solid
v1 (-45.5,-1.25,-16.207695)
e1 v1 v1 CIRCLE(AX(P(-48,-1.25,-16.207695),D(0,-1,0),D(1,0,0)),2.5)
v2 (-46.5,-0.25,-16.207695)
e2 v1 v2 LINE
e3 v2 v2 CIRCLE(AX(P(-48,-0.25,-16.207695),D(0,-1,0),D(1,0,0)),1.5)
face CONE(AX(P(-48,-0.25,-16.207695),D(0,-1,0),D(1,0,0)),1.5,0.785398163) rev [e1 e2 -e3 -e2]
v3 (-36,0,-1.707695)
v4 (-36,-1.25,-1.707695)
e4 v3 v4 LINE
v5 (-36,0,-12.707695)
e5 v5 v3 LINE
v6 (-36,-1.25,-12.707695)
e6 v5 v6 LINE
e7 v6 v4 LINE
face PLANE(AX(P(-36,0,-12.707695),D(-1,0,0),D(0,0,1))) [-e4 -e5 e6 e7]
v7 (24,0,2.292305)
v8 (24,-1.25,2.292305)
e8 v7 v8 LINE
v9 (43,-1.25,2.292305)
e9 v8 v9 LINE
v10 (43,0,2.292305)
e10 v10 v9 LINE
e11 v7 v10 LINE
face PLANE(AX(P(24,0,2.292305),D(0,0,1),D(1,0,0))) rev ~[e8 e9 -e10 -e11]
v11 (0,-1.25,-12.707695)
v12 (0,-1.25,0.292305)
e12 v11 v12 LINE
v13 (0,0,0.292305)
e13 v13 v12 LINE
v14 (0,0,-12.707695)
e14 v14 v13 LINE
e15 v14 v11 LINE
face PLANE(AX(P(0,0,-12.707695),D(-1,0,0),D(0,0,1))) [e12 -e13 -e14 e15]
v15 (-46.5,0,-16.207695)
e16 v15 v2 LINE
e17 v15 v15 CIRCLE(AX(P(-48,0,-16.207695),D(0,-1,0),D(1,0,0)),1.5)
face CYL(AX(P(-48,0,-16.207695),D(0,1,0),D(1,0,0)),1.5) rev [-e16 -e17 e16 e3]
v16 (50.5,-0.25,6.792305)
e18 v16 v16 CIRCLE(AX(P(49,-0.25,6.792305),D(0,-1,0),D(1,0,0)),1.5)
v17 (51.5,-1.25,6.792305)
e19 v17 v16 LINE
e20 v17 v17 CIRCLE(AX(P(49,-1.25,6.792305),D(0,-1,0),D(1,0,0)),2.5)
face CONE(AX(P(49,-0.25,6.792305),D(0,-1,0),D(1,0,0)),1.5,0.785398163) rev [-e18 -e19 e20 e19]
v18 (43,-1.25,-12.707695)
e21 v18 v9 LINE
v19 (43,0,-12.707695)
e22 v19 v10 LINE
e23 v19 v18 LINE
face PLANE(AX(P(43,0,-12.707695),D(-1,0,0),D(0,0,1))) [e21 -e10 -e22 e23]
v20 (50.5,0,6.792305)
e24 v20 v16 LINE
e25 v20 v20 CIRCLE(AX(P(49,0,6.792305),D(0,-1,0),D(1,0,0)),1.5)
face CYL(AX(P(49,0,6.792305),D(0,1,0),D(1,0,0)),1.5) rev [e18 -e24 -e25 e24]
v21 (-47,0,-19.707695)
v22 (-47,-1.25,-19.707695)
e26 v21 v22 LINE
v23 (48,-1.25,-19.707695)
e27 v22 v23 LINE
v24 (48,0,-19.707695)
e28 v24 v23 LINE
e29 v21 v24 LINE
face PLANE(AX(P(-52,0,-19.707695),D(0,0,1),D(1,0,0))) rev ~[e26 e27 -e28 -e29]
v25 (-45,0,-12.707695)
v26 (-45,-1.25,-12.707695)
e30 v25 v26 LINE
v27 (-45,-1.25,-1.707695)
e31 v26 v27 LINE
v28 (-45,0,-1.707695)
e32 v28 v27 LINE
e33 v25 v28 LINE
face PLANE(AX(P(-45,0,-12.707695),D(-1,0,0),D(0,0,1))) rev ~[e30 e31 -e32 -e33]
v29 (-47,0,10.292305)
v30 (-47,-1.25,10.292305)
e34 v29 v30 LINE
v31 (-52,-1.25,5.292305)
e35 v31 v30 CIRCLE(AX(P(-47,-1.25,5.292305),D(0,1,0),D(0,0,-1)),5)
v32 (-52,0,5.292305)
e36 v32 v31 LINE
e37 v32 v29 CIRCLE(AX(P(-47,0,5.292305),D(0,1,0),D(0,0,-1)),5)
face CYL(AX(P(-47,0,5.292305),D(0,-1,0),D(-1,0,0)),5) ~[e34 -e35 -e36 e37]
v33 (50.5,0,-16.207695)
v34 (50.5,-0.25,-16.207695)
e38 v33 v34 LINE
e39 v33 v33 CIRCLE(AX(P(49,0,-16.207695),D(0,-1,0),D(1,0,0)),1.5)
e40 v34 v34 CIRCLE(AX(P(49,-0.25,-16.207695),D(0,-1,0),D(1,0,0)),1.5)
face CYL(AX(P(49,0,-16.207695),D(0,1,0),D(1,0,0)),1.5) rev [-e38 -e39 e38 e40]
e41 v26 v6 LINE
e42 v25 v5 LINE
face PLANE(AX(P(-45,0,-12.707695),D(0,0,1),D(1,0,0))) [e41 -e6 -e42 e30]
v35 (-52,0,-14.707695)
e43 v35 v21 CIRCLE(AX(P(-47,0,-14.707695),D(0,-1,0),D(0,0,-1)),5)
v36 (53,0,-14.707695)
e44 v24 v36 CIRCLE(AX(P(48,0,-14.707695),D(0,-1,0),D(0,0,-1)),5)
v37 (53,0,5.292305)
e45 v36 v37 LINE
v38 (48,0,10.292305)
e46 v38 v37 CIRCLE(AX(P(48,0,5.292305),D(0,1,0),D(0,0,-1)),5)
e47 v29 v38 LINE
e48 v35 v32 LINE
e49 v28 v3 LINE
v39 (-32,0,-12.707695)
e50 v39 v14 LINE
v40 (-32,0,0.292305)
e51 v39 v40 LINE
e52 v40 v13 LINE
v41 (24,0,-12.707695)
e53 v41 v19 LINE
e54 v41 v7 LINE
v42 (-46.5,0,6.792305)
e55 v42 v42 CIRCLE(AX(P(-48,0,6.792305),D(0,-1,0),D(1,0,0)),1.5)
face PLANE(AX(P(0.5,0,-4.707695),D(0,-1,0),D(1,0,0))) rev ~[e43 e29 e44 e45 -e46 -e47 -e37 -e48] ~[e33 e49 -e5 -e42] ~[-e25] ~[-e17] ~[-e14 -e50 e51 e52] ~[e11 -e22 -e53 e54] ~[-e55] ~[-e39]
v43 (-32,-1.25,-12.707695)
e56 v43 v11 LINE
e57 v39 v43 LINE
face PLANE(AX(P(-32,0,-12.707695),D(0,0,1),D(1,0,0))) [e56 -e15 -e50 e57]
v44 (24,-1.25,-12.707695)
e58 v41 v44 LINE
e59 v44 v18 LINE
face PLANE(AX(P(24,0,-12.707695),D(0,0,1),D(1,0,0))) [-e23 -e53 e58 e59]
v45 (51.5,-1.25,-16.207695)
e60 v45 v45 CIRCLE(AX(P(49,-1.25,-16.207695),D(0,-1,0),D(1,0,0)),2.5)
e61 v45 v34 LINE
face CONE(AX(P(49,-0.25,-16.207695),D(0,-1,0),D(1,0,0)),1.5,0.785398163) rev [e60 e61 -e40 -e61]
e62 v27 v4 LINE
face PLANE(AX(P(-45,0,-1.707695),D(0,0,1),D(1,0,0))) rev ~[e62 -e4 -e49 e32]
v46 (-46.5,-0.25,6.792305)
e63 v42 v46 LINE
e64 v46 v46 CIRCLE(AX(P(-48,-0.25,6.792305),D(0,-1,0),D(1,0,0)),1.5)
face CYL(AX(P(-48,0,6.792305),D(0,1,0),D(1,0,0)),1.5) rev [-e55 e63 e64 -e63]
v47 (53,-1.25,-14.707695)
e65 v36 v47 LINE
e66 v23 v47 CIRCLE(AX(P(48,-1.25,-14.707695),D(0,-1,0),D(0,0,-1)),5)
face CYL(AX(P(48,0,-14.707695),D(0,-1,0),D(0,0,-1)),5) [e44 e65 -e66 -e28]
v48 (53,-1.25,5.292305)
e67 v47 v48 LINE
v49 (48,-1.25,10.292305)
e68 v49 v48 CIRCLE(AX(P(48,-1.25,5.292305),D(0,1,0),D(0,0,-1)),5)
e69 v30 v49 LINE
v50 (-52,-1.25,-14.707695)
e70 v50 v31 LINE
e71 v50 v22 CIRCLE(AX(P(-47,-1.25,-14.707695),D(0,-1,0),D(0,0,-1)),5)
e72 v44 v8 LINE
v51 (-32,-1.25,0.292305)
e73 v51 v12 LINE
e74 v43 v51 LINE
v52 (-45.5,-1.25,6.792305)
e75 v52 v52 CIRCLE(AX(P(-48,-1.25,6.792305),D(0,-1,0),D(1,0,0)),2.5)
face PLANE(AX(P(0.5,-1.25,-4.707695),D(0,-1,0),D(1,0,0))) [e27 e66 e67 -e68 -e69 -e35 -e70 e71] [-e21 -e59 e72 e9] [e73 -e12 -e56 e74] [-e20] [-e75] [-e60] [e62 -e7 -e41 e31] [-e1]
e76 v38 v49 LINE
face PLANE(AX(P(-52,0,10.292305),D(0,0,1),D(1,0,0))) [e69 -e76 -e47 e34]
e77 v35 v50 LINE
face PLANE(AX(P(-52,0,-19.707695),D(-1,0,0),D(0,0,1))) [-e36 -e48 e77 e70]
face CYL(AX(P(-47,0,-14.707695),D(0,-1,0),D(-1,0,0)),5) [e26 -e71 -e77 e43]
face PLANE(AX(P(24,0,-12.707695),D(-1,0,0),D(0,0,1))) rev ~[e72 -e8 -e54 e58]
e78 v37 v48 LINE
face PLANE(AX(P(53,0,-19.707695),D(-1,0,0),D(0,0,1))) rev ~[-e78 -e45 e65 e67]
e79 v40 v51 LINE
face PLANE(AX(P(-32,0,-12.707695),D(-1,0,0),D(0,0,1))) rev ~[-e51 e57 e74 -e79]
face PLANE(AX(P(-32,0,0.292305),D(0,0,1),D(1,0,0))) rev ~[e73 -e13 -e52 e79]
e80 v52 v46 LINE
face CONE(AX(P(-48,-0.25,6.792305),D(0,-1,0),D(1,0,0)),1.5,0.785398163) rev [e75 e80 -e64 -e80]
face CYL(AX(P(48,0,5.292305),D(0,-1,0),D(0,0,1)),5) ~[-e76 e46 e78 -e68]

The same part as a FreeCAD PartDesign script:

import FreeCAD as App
import Part
import Sketcher
from FreeCAD import Vector
Q = App.Units.Quantity


def edges_at(feature, points):
    """Names of the edges that pass closest to the given points."""
    edges = feature.Shape.Edges
    near = lambda p: min(range(len(edges)), key=lambda i: edges[i].distToShape(Part.Vertex(*p))[0])
    return sorted({f"Edge{near(p) + 1}" for p in points})


def add_polygon(sketch, points):
    """Adds a closed chain of lines whose ends are joined by coincident constraints."""
    first, n = sketch.GeometryCount, len(points)
    for a, b in zip(points, points[1:] + points[:1]):
        sketch.addGeometry(Part.LineSegment(App.Vector(*a, 0), App.Vector(*b, 0)), False)
    for i in range(n):
        sketch.addConstraint(Sketcher.Constraint("Coincident", first + i, 2, first + (i + 1) % n, 1))

doc = App.newDocument("Part")
params = doc.addObject("Spreadsheet::Sheet", "Params")
for row, (alias, value) in enumerate([
    ("sketch1_diameter", "3 mm"),
    ("sketch1_width", "105 mm"),
    ("sketch1_width2", "9 mm"),
    ("sketch1_width3", "32 mm"),
    ("sketch1_width4", "19 mm"),
    ("pad1_length", "1.25 mm"),
    ("fillet_radius", "5 mm"),
    ("chamfer_size", "1 mm"),
], start=1):
    params.set(f"A{row}", alias)
    params.set(f"B{row}", "=" + value)
    params.setAlias(f"B{row}", alias)

body = doc.addObject("PartDesign::Body", "Body")

# Sketch on XZ plane
sketch1 = doc.addObject("Sketcher::SketchObject", "Sketch")
body.addObject(sketch1)
sketch1.AttachmentSupport = (doc.XZ_Plane, [""])
sketch1.MapMode = "FlatFace"
add_polygon(sketch1, [(-52, 10.3), (-52, -19.7), (53, -19.7), (53, 10.3)])  # lines 0-3
sketch1.addGeometry(Part.Circle(Vector(-48, -16.2, 0), Vector(0, 0, 1), 1.5), False)  # 4
add_polygon(sketch1, [(-36, -12.7), (-45, -12.7), (-45, -1.7), (-36, -1.7)])  # lines 5-8
add_polygon(sketch1, [(0, -12.7), (-32, -12.7), (-32, 0.3), (0, 0.3)])  # lines 9-12
sketch1.addGeometry(Part.Circle(Vector(49, -16.2, 0), Vector(0, 0, 1), 1.5), False)  # 13
add_polygon(sketch1, [(43, -12.7), (24, -12.7), (24, 2.3), (43, 2.3)])  # lines 14-17
sketch1.addGeometry(Part.Circle(Vector(-48, 6.8, 0), Vector(0, 0, 1), 1.5), False)  # 18
sketch1.addGeometry(Part.Circle(Vector(49, 6.8, 0), Vector(0, 0, 1), 1.5), False)  # 19
sketch1.addConstraint([
    Sketcher.Constraint("Vertical", 0),
    Sketcher.Constraint("Horizontal", 1),
    Sketcher.Constraint("Vertical", 2),
    Sketcher.Constraint("Horizontal", 3),
    Sketcher.Constraint("Horizontal", 5),
    Sketcher.Constraint("Vertical", 6),
    Sketcher.Constraint("Horizontal", 7),
    Sketcher.Constraint("Vertical", 8),
    Sketcher.Constraint("Horizontal", 9),
    Sketcher.Constraint("Vertical", 10),
    Sketcher.Constraint("Horizontal", 11),
    Sketcher.Constraint("Vertical", 12),
    Sketcher.Constraint("Horizontal", 14),
    Sketcher.Constraint("Vertical", 15),
    Sketcher.Constraint("Horizontal", 16),
    Sketcher.Constraint("Vertical", 17),
    Sketcher.Constraint("Equal", 4, 13),
    Sketcher.Constraint("Equal", 13, 18),
    Sketcher.Constraint("Equal", 18, 19),
    Sketcher.Constraint("PointOnObject", 11, 2, -2),
    Sketcher.Constraint("Horizontal", 4, 3, 13, 3),
    Sketcher.Constraint("Horizontal", 18, 3, 19, 3),
    Sketcher.Constraint("Horizontal", 8, 2, 9, 2),
    Sketcher.Constraint("Horizontal", 12, 2, 14, 2),
    Sketcher.Constraint("Vertical", 4, 3, 18, 3),
    Sketcher.Constraint("Vertical", 13, 3, 19, 3),
    Sketcher.Constraint("Diameter", 4, Q("3 mm")),
    Sketcher.Constraint("DistanceX", 1, 1, 1, 2, Q("105 mm")),
    Sketcher.Constraint("DistanceX", 5, 2, 5, 1, Q("9 mm")),
    Sketcher.Constraint("DistanceX", 9, 2, 9, 1, Q("32 mm")),
    Sketcher.Constraint("DistanceX", 14, 2, 14, 1, Q("19 mm")),
    Sketcher.Constraint("DistanceY", 0, 2, 0, 1, Q("30 mm")),
    Sketcher.Constraint("DistanceY", 6, 1, 6, 2, Q("11 mm")),
    Sketcher.Constraint("DistanceY", 10, 1, 10, 2, Q("13 mm")),
    Sketcher.Constraint("DistanceY", 15, 1, 15, 2, Q("15 mm")),
    Sketcher.Constraint("DistanceX", 4, 3, -1, 1, Q("48 mm")),
    Sketcher.Constraint("DistanceX", -1, 1, 13, 3, Q("49 mm")),
    Sketcher.Constraint("DistanceX", 0, 2, -1, 1, Q("52 mm")),
    Sketcher.Constraint("DistanceX", 5, 2, -1, 1, Q("45 mm")),
    Sketcher.Constraint("DistanceX", -1, 1, 14, 2, Q("24 mm")),
    Sketcher.Constraint("DistanceY", 4, 3, 18, 3, Q("23 mm")),
    Sketcher.Constraint("DistanceY", 0, 2, 5, 2, Q("7 mm")),
    Sketcher.Constraint("DistanceY", 0, 2, 4, 3, Q("3.5 mm")),
    Sketcher.Constraint("DistanceY", 4, 3, -1, 1, Q("16.207695 mm")),
])
sketch1.setExpression("Constraints[42]", "Params.sketch1_diameter")
sketch1.setExpression("Constraints[43]", "Params.sketch1_width")
sketch1.setExpression("Constraints[44]", "Params.sketch1_width2")
sketch1.setExpression("Constraints[45]", "Params.sketch1_width3")
sketch1.setExpression("Constraints[46]", "Params.sketch1_width4")
pad1 = doc.addObject("PartDesign::Pad", "Pad")
body.addObject(pad1)
pad1.Profile = sketch1
pad1.setExpression("Length", "Params.pad1_length")
doc.recompute()

fillet = doc.addObject("PartDesign::Fillet", "Fillet")
body.addObject(fillet)
fillet.Base = (pad1, edges_at(pad1, [
    (53, -0.625, 10.292),
    (53, -0.625, -19.708),
    (-52, -0.625, -19.708),
    (-52, -0.625, 10.292),
]))
fillet.setExpression("Radius", "Params.fillet_radius")
doc.recompute()

chamfer = doc.addObject("PartDesign::Chamfer", "Chamfer")
body.addObject(chamfer)
chamfer.Base = (fillet, edges_at(fillet, [
    (47.5, -1.25, 6.792),
    (47.5, -1.25, -16.208),
    (-49.5, -1.25, -16.208),
    (-49.5, -1.25, 6.792),
]))
chamfer.setExpression("Size", "Params.chamfer_size")

doc.recompute()
